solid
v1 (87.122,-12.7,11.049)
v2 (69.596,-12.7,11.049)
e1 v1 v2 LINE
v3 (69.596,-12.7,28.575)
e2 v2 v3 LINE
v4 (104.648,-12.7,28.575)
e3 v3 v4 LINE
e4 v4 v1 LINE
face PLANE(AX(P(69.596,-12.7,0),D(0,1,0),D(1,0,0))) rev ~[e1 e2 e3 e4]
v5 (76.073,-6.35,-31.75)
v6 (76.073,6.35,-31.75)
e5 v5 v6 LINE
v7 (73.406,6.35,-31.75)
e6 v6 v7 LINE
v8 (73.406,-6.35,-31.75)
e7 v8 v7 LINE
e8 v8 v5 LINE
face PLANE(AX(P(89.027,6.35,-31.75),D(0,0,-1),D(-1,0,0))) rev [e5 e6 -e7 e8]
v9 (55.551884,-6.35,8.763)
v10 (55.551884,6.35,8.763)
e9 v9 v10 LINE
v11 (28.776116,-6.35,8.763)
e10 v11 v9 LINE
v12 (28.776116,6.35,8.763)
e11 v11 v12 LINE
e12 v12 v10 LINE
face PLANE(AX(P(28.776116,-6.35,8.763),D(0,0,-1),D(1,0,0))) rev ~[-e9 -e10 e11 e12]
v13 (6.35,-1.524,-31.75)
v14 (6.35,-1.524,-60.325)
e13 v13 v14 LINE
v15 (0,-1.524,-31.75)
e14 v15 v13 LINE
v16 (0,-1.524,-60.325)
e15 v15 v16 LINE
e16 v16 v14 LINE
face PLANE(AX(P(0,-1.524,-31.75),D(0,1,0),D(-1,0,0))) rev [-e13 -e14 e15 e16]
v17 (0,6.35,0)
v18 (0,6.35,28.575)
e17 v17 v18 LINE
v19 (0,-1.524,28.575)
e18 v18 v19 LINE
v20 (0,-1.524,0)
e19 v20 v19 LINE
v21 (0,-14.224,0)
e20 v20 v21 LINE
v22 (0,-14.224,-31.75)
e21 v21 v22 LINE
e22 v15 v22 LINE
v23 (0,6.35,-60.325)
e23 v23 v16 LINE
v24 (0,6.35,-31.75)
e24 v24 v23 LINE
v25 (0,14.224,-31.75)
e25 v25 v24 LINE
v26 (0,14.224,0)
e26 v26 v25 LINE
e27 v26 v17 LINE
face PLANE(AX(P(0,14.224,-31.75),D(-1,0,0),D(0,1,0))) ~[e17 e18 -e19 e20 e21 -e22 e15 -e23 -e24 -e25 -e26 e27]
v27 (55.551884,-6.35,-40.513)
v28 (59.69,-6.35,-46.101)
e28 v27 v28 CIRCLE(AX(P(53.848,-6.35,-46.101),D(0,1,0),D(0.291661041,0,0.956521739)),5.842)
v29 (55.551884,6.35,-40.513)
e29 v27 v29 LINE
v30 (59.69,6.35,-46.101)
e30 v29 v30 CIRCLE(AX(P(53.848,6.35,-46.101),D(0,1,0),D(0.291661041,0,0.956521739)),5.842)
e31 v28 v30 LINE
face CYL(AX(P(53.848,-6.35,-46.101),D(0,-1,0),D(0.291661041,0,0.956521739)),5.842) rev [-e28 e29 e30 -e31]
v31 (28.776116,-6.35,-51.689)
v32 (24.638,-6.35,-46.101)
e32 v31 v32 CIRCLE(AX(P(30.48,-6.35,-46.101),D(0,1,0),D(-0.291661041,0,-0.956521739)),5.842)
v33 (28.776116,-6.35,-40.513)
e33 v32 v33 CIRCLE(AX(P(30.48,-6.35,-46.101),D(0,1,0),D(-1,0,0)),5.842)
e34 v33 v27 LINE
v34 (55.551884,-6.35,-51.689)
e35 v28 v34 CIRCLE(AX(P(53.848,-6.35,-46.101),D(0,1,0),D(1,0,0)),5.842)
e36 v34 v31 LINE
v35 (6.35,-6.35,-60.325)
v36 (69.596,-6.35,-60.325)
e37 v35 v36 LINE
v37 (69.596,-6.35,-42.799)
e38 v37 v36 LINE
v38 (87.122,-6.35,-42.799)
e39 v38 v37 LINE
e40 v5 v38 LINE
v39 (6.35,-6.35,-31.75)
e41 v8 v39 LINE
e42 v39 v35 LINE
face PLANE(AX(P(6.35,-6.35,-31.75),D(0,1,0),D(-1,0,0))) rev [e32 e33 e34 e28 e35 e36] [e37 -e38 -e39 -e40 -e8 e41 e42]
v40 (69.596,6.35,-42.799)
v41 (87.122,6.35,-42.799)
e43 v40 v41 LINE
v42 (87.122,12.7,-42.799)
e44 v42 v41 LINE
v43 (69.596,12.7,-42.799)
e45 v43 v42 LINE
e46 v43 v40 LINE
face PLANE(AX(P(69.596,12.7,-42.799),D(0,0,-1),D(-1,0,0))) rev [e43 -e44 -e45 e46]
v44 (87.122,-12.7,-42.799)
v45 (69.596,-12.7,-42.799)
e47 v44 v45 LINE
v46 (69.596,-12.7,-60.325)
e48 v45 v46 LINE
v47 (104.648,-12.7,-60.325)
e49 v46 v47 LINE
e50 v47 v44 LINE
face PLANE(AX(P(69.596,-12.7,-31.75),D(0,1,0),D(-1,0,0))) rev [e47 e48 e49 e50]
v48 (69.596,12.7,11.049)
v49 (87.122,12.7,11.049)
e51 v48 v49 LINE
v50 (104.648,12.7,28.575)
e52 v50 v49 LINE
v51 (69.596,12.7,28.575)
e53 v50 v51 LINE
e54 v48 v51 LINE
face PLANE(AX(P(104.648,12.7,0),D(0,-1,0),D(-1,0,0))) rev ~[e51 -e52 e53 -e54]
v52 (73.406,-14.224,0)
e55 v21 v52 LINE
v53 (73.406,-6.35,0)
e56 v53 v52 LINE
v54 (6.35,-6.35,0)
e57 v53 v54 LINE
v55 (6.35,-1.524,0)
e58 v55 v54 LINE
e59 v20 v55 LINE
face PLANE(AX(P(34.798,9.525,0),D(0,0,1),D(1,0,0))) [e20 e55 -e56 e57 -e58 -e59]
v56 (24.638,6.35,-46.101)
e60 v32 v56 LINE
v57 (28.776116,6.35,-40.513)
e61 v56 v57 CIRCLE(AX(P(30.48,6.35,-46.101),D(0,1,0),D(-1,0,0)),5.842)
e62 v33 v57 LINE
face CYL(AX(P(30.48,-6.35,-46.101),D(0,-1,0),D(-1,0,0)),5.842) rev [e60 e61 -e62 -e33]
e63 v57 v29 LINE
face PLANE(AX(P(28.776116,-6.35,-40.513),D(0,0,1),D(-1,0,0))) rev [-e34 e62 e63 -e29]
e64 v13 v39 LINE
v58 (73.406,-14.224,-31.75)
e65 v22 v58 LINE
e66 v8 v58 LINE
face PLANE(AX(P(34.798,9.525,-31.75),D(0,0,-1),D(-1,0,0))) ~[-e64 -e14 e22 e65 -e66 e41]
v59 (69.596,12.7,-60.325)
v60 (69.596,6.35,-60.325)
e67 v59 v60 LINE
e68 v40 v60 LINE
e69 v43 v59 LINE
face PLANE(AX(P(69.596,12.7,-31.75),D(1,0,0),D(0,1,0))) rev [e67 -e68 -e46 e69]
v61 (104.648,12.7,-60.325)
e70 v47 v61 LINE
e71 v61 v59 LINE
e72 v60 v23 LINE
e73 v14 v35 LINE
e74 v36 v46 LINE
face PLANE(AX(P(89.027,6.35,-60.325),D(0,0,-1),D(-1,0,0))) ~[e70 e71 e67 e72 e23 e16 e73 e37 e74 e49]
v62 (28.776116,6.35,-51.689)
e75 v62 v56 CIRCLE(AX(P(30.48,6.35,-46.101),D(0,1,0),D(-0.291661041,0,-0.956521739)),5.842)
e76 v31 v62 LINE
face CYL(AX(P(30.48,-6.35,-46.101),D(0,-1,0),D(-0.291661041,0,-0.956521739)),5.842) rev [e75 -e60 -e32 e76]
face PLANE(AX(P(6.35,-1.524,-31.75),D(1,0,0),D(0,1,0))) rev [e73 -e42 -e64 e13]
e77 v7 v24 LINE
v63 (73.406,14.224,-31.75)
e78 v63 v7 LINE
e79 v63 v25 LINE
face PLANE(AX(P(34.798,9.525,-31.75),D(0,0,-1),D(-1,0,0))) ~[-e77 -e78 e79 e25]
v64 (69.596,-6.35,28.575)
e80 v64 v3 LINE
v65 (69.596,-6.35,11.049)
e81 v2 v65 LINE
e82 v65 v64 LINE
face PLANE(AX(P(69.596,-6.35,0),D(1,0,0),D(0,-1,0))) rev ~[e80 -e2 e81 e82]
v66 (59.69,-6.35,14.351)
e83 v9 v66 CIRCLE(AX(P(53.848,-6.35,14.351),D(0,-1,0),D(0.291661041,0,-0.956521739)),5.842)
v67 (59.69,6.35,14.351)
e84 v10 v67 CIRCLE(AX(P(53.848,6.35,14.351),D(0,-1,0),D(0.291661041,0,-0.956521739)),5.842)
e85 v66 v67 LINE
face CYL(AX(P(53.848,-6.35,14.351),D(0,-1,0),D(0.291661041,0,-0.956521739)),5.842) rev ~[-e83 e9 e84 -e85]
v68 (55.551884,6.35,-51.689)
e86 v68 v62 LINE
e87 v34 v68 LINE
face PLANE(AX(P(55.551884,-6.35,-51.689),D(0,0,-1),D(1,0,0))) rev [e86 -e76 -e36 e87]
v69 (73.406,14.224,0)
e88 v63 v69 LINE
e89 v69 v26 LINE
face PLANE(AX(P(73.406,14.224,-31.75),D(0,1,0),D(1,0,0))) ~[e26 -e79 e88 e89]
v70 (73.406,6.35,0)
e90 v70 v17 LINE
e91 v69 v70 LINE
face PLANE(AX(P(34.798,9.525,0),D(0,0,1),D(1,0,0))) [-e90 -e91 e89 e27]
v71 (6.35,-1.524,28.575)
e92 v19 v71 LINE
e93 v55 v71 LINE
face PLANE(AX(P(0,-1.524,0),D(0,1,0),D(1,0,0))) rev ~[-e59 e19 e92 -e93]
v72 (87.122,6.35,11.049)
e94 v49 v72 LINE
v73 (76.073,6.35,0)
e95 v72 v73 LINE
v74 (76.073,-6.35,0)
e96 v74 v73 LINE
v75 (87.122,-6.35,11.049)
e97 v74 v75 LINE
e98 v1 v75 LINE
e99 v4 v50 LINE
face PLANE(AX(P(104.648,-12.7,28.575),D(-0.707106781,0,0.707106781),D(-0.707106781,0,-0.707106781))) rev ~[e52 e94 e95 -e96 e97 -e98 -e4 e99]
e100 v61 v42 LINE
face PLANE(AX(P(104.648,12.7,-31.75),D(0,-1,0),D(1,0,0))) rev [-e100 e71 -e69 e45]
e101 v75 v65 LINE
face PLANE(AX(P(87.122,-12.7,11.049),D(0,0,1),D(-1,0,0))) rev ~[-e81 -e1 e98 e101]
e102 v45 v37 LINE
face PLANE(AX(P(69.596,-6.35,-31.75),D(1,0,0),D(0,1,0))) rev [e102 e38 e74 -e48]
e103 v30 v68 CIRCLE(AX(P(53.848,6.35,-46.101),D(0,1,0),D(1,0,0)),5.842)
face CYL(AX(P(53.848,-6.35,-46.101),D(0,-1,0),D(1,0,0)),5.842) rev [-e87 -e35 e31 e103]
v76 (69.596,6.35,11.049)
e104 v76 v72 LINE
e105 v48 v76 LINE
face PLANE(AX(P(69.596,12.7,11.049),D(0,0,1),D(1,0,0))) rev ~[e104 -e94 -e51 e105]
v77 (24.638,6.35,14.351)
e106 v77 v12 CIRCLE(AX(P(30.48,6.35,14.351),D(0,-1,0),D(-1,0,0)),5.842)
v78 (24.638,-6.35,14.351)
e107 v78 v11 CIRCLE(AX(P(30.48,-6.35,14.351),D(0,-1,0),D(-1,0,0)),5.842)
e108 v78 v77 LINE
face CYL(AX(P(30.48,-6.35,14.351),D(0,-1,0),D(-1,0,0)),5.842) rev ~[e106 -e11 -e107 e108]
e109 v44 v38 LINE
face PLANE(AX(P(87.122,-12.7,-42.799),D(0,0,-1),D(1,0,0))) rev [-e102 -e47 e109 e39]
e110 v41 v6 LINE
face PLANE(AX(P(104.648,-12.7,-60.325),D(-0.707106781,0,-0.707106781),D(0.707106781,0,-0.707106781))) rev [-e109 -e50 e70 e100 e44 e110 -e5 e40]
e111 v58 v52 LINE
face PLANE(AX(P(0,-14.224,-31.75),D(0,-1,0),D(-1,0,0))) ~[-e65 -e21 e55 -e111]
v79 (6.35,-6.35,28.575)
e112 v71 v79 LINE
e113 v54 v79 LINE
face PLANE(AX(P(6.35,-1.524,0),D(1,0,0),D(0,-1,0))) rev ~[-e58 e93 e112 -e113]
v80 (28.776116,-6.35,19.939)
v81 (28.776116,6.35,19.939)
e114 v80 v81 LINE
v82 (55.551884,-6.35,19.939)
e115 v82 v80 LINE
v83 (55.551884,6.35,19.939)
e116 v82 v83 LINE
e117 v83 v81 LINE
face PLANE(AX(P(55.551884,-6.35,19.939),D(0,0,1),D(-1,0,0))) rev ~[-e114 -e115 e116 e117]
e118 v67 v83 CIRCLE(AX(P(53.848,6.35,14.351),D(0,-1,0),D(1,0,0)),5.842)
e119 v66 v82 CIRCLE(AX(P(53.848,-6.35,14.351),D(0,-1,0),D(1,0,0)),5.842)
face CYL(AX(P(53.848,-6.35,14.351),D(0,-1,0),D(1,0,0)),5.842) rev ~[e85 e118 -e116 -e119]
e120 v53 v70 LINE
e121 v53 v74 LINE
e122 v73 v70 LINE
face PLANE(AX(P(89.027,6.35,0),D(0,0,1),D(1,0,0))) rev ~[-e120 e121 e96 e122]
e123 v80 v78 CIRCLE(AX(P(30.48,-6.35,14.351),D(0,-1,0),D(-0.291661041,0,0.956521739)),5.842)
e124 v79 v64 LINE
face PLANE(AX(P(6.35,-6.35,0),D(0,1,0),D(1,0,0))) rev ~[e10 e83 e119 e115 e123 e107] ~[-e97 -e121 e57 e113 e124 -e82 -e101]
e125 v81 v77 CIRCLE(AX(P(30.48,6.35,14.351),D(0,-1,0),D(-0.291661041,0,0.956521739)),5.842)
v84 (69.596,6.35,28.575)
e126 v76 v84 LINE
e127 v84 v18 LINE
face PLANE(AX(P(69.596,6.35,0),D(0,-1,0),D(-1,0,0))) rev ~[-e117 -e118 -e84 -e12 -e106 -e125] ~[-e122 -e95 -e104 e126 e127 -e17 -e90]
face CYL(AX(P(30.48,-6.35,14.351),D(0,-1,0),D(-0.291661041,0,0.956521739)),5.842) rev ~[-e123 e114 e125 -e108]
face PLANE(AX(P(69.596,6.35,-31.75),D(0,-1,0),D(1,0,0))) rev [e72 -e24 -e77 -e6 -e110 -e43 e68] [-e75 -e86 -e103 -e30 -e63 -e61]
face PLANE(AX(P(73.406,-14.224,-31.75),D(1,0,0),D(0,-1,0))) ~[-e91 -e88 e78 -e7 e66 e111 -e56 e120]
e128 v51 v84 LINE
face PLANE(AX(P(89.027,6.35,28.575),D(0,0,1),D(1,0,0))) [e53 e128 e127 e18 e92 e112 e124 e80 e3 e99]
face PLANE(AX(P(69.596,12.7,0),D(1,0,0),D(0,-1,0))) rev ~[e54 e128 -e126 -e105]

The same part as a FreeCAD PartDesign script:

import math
import FreeCAD as App
import Part
import Sketcher
from FreeCAD import Vector
Q = App.Units.Quantity

doc = App.newDocument("Part")
params = doc.addObject("Spreadsheet::Sheet", "Params")
for row, (alias, value) in enumerate([
    ("sketch1_height", "1 in"),
    ("sketch1_width", "0.25 in"),
    ("sketch1_width2", "2.49 in"),
    ("sketch1_width3", "1.38 in"),
    ("sketch1_height2", "0.19 in"),
    ("pad1_length", "1.125 in"),
    ("sketch2_width", "2.89 in"),
    ("sketch2_height", "1.12 in"),
    ("pad2_length", "0.625 in"),
    ("sketch3_width", "1.125 in"),
    ("sketch4_radius", "0.23 in"),
    ("sketch5_width", "0.69 in"),
    ("sketch5_width2", "0.255 in"),
    ("pocket3_length", "0.25 in"),
    ("sketch6_width", "0.69 in"),
    ("sketch6_width2", "0.255 in"),
    ("pocket4_length", "0.25 in"),
], start=1):
    params.set(f"A{row}", alias)
    params.set(f"B{row}", "=" + value)
    params.setAlias(f"B{row}", alias)

body = doc.addObject("PartDesign::Body", "Body")

sketch1 = body.newObject("Sketcher::SketchObject", "Sketch")
sketch1.AttachmentSupport = (doc.getObject("XY_Plane"), [""])
sketch1.MapMode = "FlatFace"
sketch1.addGeometry([
    Part.LineSegment(Vector(0, -1.5, 0), Vector(6.3, -1.5, 0)),
    Part.LineSegment(Vector(6.3, -1.5, 0), Vector(6.3, -6.3, 0)),
    Part.LineSegment(Vector(6.3, -6.3, 0), Vector(69.6, -6.3, 0)),
    Part.LineSegment(Vector(69.6, -6.3, 0), Vector(69.6, -12.7, 0)),
    Part.LineSegment(Vector(69.6, -12.7, 0), Vector(104.6, -12.7, 0)),
    Part.LineSegment(Vector(104.6, -12.7, 0), Vector(104.6, 12.7, 0)),
    Part.LineSegment(Vector(104.6, 12.7, 0), Vector(69.6, 12.7, 0)),
    Part.LineSegment(Vector(69.6, 12.7, 0), Vector(69.6, 6.3, 0)),
    Part.LineSegment(Vector(69.6, 6.3, 0), Vector(0, 6.3, 0)),
    Part.LineSegment(Vector(0, 6.3, 0), Vector(0, -1.5, 0)),
], False)
sketch1.addConstraint([
    Sketcher.Constraint("Coincident", 0, 2, 1, 1),
    Sketcher.Constraint("Coincident", 1, 2, 2, 1),
    Sketcher.Constraint("Coincident", 2, 2, 3, 1),
    Sketcher.Constraint("Coincident", 3, 2, 4, 1),
    Sketcher.Constraint("Coincident", 4, 2, 5, 1),
    Sketcher.Constraint("Coincident", 5, 2, 6, 1),
    Sketcher.Constraint("Coincident", 6, 2, 7, 1),
    Sketcher.Constraint("Coincident", 7, 2, 8, 1),
    Sketcher.Constraint("Coincident", 8, 2, 9, 1),
    Sketcher.Constraint("Coincident", 9, 2, 0, 1),
    Sketcher.Constraint("Horizontal", 0),
    Sketcher.Constraint("Vertical", 1),
    Sketcher.Constraint("Horizontal", 2),
    Sketcher.Constraint("Vertical", 3),
    Sketcher.Constraint("Horizontal", 4),
    Sketcher.Constraint("Vertical", 5),
    Sketcher.Constraint("Horizontal", 6),
    Sketcher.Constraint("Vertical", 7),
    Sketcher.Constraint("Horizontal", 8),
    Sketcher.Constraint("Vertical", 9),
    Sketcher.Constraint("Symmetric", 3, 2, 6, 2, -1),
    Sketcher.Constraint("PointOnObject", 8, 2, -2),
    Sketcher.Constraint("Equal", 0, 3),
    Sketcher.Constraint("Equal", 3, 7),
    Sketcher.Constraint("DistanceY", 5, 1, 5, 2, Q("1 in")),
    Sketcher.Constraint("DistanceX", 0, 1, 0, 2, Q("0.25 in")),
    Sketcher.Constraint("DistanceX", 2, 1, 2, 2, Q("2.49 in")),
    Sketcher.Constraint("DistanceX", 4, 1, 4, 2, Q("1.38 in")),
    Sketcher.Constraint("DistanceY", 1, 2, 1, 1, Q("0.19 in")),
])
sketch1.setExpression("Constraints[24]", "Params.sketch1_height")
sketch1.setExpression("Constraints[25]", "Params.sketch1_width")
sketch1.setExpression("Constraints[26]", "Params.sketch1_width2")
sketch1.setExpression("Constraints[27]", "Params.sketch1_width3")
sketch1.setExpression("Constraints[28]", "Params.sketch1_height2")
pad1 = body.newObject("PartDesign::Pad", "Pad")
pad1.Profile = sketch1
pad1.setExpression("Length", "Params.pad1_length")

sketch2 = body.newObject("Sketcher::SketchObject", "Sketch001")
sketch2.AttachmentSupport = (doc.getObject("XY_Plane"), [""])
sketch2.MapMode = "FlatFace"
sketch2.addGeometry([
    Part.LineSegment(Vector(0, -14, 0), Vector(73, -14, 0)),
    Part.LineSegment(Vector(73, -14, 0), Vector(73, 14, 0)),
    Part.LineSegment(Vector(73, 14, 0), Vector(0, 14, 0)),
    Part.LineSegment(Vector(0, 14, 0), Vector(0, -14, 0)),
], False)
sketch2.addConstraint([
    Sketcher.Constraint("Coincident", 0, 2, 1, 1),
    Sketcher.Constraint("Coincident", 1, 2, 2, 1),
    Sketcher.Constraint("Coincident", 2, 2, 3, 1),
    Sketcher.Constraint("Coincident", 3, 2, 0, 1),
    Sketcher.Constraint("Horizontal", 0),
    Sketcher.Constraint("Vertical", 1),
    Sketcher.Constraint("Horizontal", 2),
    Sketcher.Constraint("Vertical", 3),
    Sketcher.Constraint("Symmetric", 2, 2, 3, 2, -1, 1),
    Sketcher.Constraint("DistanceX", 0, 1, 0, 2, Q("2.89 in")),
    Sketcher.Constraint("DistanceY", 1, 1, 1, 2, Q("1.12 in")),
])
sketch2.setExpression("Constraints[9]", "Params.sketch2_width")
sketch2.setExpression("Constraints[10]", "Params.sketch2_height")
pad2 = body.newObject("PartDesign::Pad", "Pad001")
pad2.Profile = sketch2
pad2.setExpression("Length", "Params.pad2_length")
pad2.Reversed = True

sketch3 = body.newObject("Sketcher::SketchObject", "Sketch002")
sketch3.AttachmentSupport = (doc.getObject("XZ_Plane"), [""])
sketch3.MapMode = "FlatFace"
sketch3.AttachmentOffset = App.Placement(Vector(0, 0, 0.5 * 25.4), App.Rotation())
sketch3.addGeometry([
    Part.LineSegment(Vector(105, 0, 0), Vector(105, 29, 0)),
    Part.LineSegment(Vector(105, 29, 0), Vector(76, 0, 0)),
    Part.LineSegment(Vector(76, 0, 0), Vector(105, 0, 0)),
], False)
sketch3.addConstraint([
    Sketcher.Constraint("Coincident", 0, 2, 1, 1),
    Sketcher.Constraint("Coincident", 1, 2, 2, 1),
    Sketcher.Constraint("Coincident", 2, 2, 0, 1),
    Sketcher.Constraint("Vertical", 0),
    Sketcher.Constraint("Horizontal", 2),
    Sketcher.Constraint("PointOnObject", 1, 2, -1),
    Sketcher.Constraint("Equal", 2, 0),
    Sketcher.Constraint("DistanceX", 2, 1, 2, 2, Q("1.125 in")),
    Sketcher.Constraint("DistanceX", -1, 1, 0, 2, Q("4.12 in")),
])
sketch3.setExpression("Constraints[7]", "Params.sketch3_width")
pocket1 = body.newObject("PartDesign::Pocket", "Pocket")
pocket1.Profile = sketch3
pocket1.Type = "ThroughAll"

sketch4 = body.newObject("Sketcher::SketchObject", "Sketch003")
sketch4.AttachmentSupport = (doc.getObject("XZ_Plane"), [""])
sketch4.MapMode = "FlatFace"
sketch4.AttachmentOffset = App.Placement(Vector(0, 0, 0.25 * 25.4), App.Rotation())
sketch4.addGeometry([
    Part.ArcOfCircle(Part.Circle(Vector(30, 14, 0), Vector(0, 0, 1), 6), math.radians(107), math.radians(180)),
    Part.ArcOfCircle(Part.Circle(Vector(30, 14, 0), Vector(0, 0, 1), 6), math.radians(180), math.radians(253)),
    Part.LineSegment(Vector(29, 9, 0), Vector(56, 9, 0)),
    Part.ArcOfCircle(Part.Circle(Vector(54, 14, 0), Vector(0, 0, 1), 6), math.radians(-73), math.radians(0)),
    Part.ArcOfCircle(Part.Circle(Vector(54, 14, 0), Vector(0, 0, 1), 6), math.radians(0), math.radians(73)),
    Part.LineSegment(Vector(56, 20, 0), Vector(29, 20, 0)),
], False)
sketch4.addConstraint([
    Sketcher.Constraint("Tangent", 0, 2, 1, 1),
    Sketcher.Constraint("Coincident", 1, 2, 2, 1),
    Sketcher.Constraint("Coincident", 2, 2, 3, 1),
    Sketcher.Constraint("Tangent", 3, 2, 4, 1),
    Sketcher.Constraint("Coincident", 4, 2, 5, 1),
    Sketcher.Constraint("Coincident", 5, 2, 0, 1),
    Sketcher.Constraint("Horizontal", 2),
    Sketcher.Constraint("Horizontal", 5),
    Sketcher.Constraint("Equal", 0, 1),
    Sketcher.Constraint("Equal", 1, 3),
    Sketcher.Constraint("Equal", 3, 4),
    Sketcher.Constraint("Horizontal", 1, 3, 3, 3),
    Sketcher.Constraint("Horizontal", 4, 3, 0, 2),
    Sketcher.Constraint("Horizontal", 0, 2, 3, 2),
    Sketcher.Constraint("Vertical", 2, 2, 4, 2),
    Sketcher.Constraint("Radius", 0, Q("0.23 in")),
    Sketcher.Constraint("DistanceX", -1, 1, 0, 3, Q("1.2 in")),
    Sketcher.Constraint("DistanceX", -1, 1, 3, 3, Q("2.12 in")),
    Sketcher.Constraint("DistanceY", 1, 2, 0, 3, Q("0.22 in")),
    Sketcher.Constraint("DistanceY", -1, 1, 0, 3, Q("0.565 in")),
])
sketch4.setExpression("Constraints[15]", "Params.sketch4_radius")
pocket2 = body.newObject("PartDesign::Pocket", "Pocket001")
pocket2.Profile = sketch4
pocket2.Type = "ThroughAll"

sketch5 = body.newObject("Sketcher::SketchObject", "Sketch004")
sketch5.AttachmentSupport = (doc.getObject("XZ_Plane"), [""])
sketch5.MapMode = "FlatFace"
sketch5.AttachmentOffset = App.Placement(Vector(0, 0, -0.5 * 25.4), App.Rotation())
sketch5.addGeometry([
    Part.LineSegment(Vector(70, 0, 0), Vector(70, 11, 0)),
    Part.LineSegment(Vector(70, 11, 0), Vector(87, 11, 0)),
    Part.LineSegment(Vector(87, 11, 0), Vector(76, 0, 0)),
    Part.LineSegment(Vector(76, 0, 0), Vector(70, 0, 0)),
], False)
sketch5.addConstraint([
    Sketcher.Constraint("Coincident", 0, 2, 1, 1),
    Sketcher.Constraint("Coincident", 1, 2, 2, 1),
    Sketcher.Constraint("Coincident", 2, 2, 3, 1),
    Sketcher.Constraint("Coincident", 3, 2, 0, 1),
    Sketcher.Constraint("Vertical", 0),
    Sketcher.Constraint("Horizontal", 1),
    Sketcher.Constraint("Horizontal", 3),
    Sketcher.Constraint("PointOnObject", 2, 2, -1),
    Sketcher.Constraint("Angle", 2, Q("-135 deg")),
    Sketcher.Constraint("DistanceX", 1, 1, 1, 2, Q("0.69 in")),
    Sketcher.Constraint("DistanceX", 3, 2, 3, 1, Q("0.255 in")),
    Sketcher.Constraint("DistanceX", -1, 1, 0, 2, Q("2.74 in")),
])
sketch5.setExpression("Constraints[9]", "Params.sketch5_width")
sketch5.setExpression("Constraints[10]", "Params.sketch5_width2")
pocket3 = body.newObject("PartDesign::Pocket", "Pocket002")
pocket3.Profile = sketch5
pocket3.setExpression("Length", "Params.pocket3_length")
pocket3.Reversed = True

sketch6 = body.newObject("Sketcher::SketchObject", "Sketch005")
sketch6.AttachmentSupport = (doc.getObject("XZ_Plane"), [""])
sketch6.MapMode = "FlatFace"
sketch6.AttachmentOffset = App.Placement(Vector(0, 0, 0.5 * 25.4), App.Rotation())
sketch6.addGeometry([
    Part.LineSegment(Vector(87, 11, 0), Vector(70, 11, 0)),
    Part.LineSegment(Vector(70, 11, 0), Vector(70, 0, 0)),
    Part.LineSegment(Vector(70, 0, 0), Vector(76, 0, 0)),
    Part.LineSegment(Vector(76, 0, 0), Vector(87, 11, 0)),
], False)
sketch6.addConstraint([
    Sketcher.Constraint("Coincident", 0, 2, 1, 1),
    Sketcher.Constraint("Coincident", 1, 2, 2, 1),
    Sketcher.Constraint("Coincident", 2, 2, 3, 1),
    Sketcher.Constraint("Coincident", 3, 2, 0, 1),
    Sketcher.Constraint("Horizontal", 0),
    Sketcher.Constraint("Vertical", 1),
    Sketcher.Constraint("Horizontal", 2),
    Sketcher.Constraint("PointOnObject", 1, 2, -1),
    Sketcher.Constraint("Angle", 3, Q("45 deg")),
    Sketcher.Constraint("DistanceX", 0, 2, 0, 1, Q("0.69 in")),
    Sketcher.Constraint("DistanceX", 2, 1, 2, 2, Q("0.255 in")),
    Sketcher.Constraint("DistanceX", -1, 1, 0, 2, Q("2.74 in")),
])
sketch6.setExpression("Constraints[9]", "Params.sketch6_width")
sketch6.setExpression("Constraints[10]", "Params.sketch6_width2")
pocket4 = body.newObject("PartDesign::Pocket", "Pocket003")
pocket4.Profile = sketch6
pocket4.setExpression("Length", "Params.pocket4_length")
body2 = doc.addObject("PartDesign::Body", "Body001")
doc.recompute()

body2.BaseFeature = body
doc.recompute()

mirroring = doc.addObject("Part::Mirroring", "Mirroring")
mirroring.Source = body
mirroring.Base = Vector(36.703, 0, -15.875)
mirroring.Normal = Vector(0, 0, -1)
body3 = doc.addObject("PartDesign::Body", "Body002")
body3.BaseFeature = mirroring
boolean = body2.newObject("PartDesign::Boolean", "Boolean")
boolean.Type = "Fuse"
boolean.addObjects([body3])
doc.recompute()
mirroring.Visibility = False

doc.recompute()
